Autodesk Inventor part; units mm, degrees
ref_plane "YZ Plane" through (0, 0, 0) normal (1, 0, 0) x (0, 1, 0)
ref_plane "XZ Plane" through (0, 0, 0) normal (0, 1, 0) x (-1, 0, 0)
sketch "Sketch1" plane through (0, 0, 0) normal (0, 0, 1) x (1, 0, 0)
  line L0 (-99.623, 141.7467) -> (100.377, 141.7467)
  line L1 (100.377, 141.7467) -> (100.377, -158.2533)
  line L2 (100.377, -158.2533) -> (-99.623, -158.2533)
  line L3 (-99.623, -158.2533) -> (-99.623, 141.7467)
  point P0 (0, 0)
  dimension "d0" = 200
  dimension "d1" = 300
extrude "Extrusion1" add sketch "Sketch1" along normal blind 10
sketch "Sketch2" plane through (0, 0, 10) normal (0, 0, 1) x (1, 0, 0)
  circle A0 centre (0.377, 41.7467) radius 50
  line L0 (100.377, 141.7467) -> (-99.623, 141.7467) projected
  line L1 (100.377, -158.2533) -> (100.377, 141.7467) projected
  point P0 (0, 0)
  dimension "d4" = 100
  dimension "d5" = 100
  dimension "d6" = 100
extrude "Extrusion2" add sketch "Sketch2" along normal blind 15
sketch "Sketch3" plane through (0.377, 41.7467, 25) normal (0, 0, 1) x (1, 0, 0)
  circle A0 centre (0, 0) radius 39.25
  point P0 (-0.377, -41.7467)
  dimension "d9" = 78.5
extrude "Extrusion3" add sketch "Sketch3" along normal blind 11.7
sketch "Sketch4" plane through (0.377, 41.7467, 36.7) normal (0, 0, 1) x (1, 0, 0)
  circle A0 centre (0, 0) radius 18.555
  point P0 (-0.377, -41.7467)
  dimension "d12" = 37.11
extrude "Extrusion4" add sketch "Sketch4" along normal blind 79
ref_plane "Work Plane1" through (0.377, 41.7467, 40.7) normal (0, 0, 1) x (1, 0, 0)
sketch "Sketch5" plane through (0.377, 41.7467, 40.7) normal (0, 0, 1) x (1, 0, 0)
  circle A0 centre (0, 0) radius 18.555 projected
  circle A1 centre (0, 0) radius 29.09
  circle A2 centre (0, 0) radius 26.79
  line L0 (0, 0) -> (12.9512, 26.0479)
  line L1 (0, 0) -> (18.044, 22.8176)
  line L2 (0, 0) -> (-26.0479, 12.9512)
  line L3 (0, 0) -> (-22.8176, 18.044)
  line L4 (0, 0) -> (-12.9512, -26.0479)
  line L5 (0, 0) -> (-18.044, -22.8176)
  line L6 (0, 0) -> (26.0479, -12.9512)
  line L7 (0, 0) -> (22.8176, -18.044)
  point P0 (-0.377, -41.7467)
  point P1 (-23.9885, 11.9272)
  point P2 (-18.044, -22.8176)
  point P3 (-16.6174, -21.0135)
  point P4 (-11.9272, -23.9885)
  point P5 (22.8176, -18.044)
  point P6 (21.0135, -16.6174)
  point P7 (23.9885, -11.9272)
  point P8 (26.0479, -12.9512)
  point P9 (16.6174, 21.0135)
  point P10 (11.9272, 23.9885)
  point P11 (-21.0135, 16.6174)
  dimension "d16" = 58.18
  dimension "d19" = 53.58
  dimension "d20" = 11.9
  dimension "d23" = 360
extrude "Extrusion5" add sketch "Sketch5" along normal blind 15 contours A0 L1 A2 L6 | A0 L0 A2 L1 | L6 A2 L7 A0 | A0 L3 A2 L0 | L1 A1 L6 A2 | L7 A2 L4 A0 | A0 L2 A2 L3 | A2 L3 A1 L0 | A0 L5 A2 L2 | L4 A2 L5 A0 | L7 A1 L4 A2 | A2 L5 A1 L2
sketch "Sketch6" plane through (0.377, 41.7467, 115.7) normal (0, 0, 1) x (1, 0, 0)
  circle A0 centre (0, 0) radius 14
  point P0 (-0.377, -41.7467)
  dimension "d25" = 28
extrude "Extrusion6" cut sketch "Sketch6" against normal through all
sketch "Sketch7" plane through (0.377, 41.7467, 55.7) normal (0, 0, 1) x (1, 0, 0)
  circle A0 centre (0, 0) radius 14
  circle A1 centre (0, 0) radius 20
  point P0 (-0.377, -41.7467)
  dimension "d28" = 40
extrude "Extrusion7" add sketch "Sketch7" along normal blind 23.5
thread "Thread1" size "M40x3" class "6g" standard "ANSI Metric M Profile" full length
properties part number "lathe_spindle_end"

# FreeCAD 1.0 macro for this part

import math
import FreeCAD as App
import Part
import Sketcher

doc = App.newDocument("Part")
body = doc.addObject("PartDesign::Body", "Body")

# Sketch on XY plane
sketch1 = doc.addObject("Sketcher::SketchObject", "Sketch")
body.addObject(sketch1)
sketch1.AttachmentSupport = (doc.XY_Plane, [""])
sketch1.MapMode = "FlatFace"
sketch1.addGeometry([
    Part.LineSegment(App.Vector(100, 142, 0), App.Vector(-100, 142, 0)),
    Part.LineSegment(App.Vector(-100, 142, 0), App.Vector(-100, -158, 0)),
    Part.LineSegment(App.Vector(-100, -158, 0), App.Vector(100, -158, 0)),
    Part.LineSegment(App.Vector(100, -158, 0), App.Vector(100, 142, 0)),
], False)
sketch1.addConstraint([
    Sketcher.Constraint("Coincident", 0, 2, 1, 1),
    Sketcher.Constraint("Coincident", 1, 2, 2, 1),
    Sketcher.Constraint("Coincident", 2, 2, 3, 1),
    Sketcher.Constraint("Coincident", 3, 2, 0, 1),
    Sketcher.Constraint("Horizontal", 0),
    Sketcher.Constraint("Vertical", 1),
    Sketcher.Constraint("Horizontal", 2),
    Sketcher.Constraint("Vertical", 3),
    Sketcher.Constraint("DistanceX", 0, 2, 0, 1, 200.0),
    Sketcher.Constraint("DistanceY", 1, 2, 1, 1, 300.0),
    Sketcher.Constraint("DistanceX", 0, 2, -1, 1, 99.623),
    Sketcher.Constraint("DistanceY", -1, 1, 0, 2, 141.7467),
])
pad1 = doc.addObject("PartDesign::Pad", "Pad")
body.addObject(pad1)
pad1.Profile = sketch1
pad1.Length = 10

# Sketch on XY plane
sketch2 = doc.addObject("Sketcher::SketchObject", "Sketch001")
body.addObject(sketch2)
sketch2.AttachmentSupport = (doc.XY_Plane, [""])
sketch2.MapMode = "FlatFace"
sketch2.AttachmentOffset = App.Placement(App.Vector(0, 0, 10), App.Rotation())
sketch2.addGeometry(Part.Circle(App.Vector(0, 42, 0), App.Vector(0, 0, 1), 50), False)
sketch2.addConstraint([
    Sketcher.Constraint("Diameter", 0, 100.0),
    Sketcher.Constraint("DistanceX", -1, 1, 0, 3, 0.377),
    Sketcher.Constraint("DistanceY", -1, 1, 0, 3, 41.7467),
])
pad2 = doc.addObject("PartDesign::Pad", "Pad001")
body.addObject(pad2)
pad2.Profile = sketch2
pad2.Length = 15

# Sketch on XY plane
sketch3 = doc.addObject("Sketcher::SketchObject", "Sketch002")
body.addObject(sketch3)
sketch3.AttachmentSupport = (doc.XY_Plane, [""])
sketch3.MapMode = "FlatFace"
sketch3.AttachmentOffset = App.Placement(App.Vector(0, 0, 25), App.Rotation())
sketch3.addGeometry(Part.Circle(App.Vector(0, 42, 0), App.Vector(0, 0, 1), 39), False)
sketch3.addConstraint([
    Sketcher.Constraint("Diameter", 0, 78.5),
    Sketcher.Constraint("DistanceX", -1, 1, 0, 3, 0.377),
    Sketcher.Constraint("DistanceY", -1, 1, 0, 3, 41.7467),
])
pad3 = doc.addObject("PartDesign::Pad", "Pad002")
body.addObject(pad3)
pad3.Profile = sketch3
pad3.Length = 11.7

# Sketch on XY plane
sketch4 = doc.addObject("Sketcher::SketchObject", "Sketch003")
body.addObject(sketch4)
sketch4.AttachmentSupport = (doc.XY_Plane, [""])
sketch4.MapMode = "FlatFace"
sketch4.AttachmentOffset = App.Placement(App.Vector(0, 0, 36.7), App.Rotation())
sketch4.addGeometry(Part.Circle(App.Vector(0, 42, 0), App.Vector(0, 0, 1), 19), False)
sketch4.addConstraint([
    Sketcher.Constraint("Diameter", 0, 37.11),
    Sketcher.Constraint("DistanceX", -1, 1, 0, 3, 0.377),
    Sketcher.Constraint("DistanceY", -1, 1, 0, 3, 41.7467),
])
pad4 = doc.addObject("PartDesign::Pad", "Pad003")
body.addObject(pad4)
pad4.Profile = sketch4
pad4.Length = 79

# Sketch on XY plane
sketch5 = doc.addObject("Sketcher::SketchObject", "Sketch004")
body.addObject(sketch5)
sketch5.AttachmentSupport = (doc.XY_Plane, [""])
sketch5.MapMode = "FlatFace"
sketch5.AttachmentOffset = App.Placement(App.Vector(0, 0, 40.7), App.Rotation())
sketch5.addGeometry([
    Part.ArcOfCircle(Part.Circle(App.Vector(0.4, 41.7, 0), App.Vector(0, 0, 1), 26.8), math.radians(51.66), math.radians(63.56)),  # 0
    Part.LineSegment(App.Vector(12.3, 65.7, 0), App.Vector(13.3, 67.8, 0)),  # 1
    Part.ArcOfCircle(Part.Circle(App.Vector(0.4, 41.7, 0), App.Vector(0, 0, 1), 29.1), math.radians(64), math.radians(142)),  # 2
    Part.LineSegment(App.Vector(-22.4, 59.8, 0), App.Vector(-20.6, 58.4, 0)),  # 3
    Part.ArcOfCircle(Part.Circle(App.Vector(0.4, 41.7, 0), App.Vector(0, 0, 1), 26.8), math.radians(141.66), math.radians(153.56)),  # 4
    Part.LineSegment(App.Vector(-23.6, 53.7, 0), App.Vector(-25.7, 54.7, 0)),  # 5
    Part.ArcOfCircle(Part.Circle(App.Vector(0.4, 41.7, 0), App.Vector(0, 0, 1), 29.1), math.radians(154), math.radians(232)),  # 6
    Part.LineSegment(App.Vector(-17.7, 18.9, 0), App.Vector(-16.2, 20.7, 0)),  # 7
    Part.ArcOfCircle(Part.Circle(App.Vector(0.4, 41.7, 0), App.Vector(0, 0, 1), 26.8), math.radians(-128.34), math.radians(-116.44)),  # 8
    Part.LineSegment(App.Vector(-11.6, 17.8, 0), App.Vector(-12.6, 15.7, 0)),  # 9
    Part.ArcOfCircle(Part.Circle(App.Vector(0.4, 41.7, 0), App.Vector(0, 0, 1), 29.1), math.radians(-116), math.radians(-38)),  # 10
    Part.LineSegment(App.Vector(23.2, 23.7, 0), App.Vector(21.4, 25.1, 0)),  # 11
    Part.ArcOfCircle(Part.Circle(App.Vector(0.4, 41.7, 0), App.Vector(0, 0, 1), 26.8), math.radians(-38.34), math.radians(-26.44)),  # 12
    Part.LineSegment(App.Vector(24.4, 29.8, 0), App.Vector(26.4, 28.8, 0)),  # 13
    Part.ArcOfCircle(Part.Circle(App.Vector(0.4, 41.7, 0), App.Vector(0, 0, 1), 29.1), math.radians(-26), math.radians(52)),  # 14
    Part.LineSegment(App.Vector(18.4, 64.6, 0), App.Vector(17, 62.8, 0)),  # 15
    Part.Circle(App.Vector(0.4, 41.7, 0), App.Vector(0, 0, 1), 18.6),  # 16
], False)
sketch5.addConstraint([
    Sketcher.Constraint("Coincident", 0, 2, 1, 1),
    Sketcher.Constraint("Coincident", 1, 2, 2, 1),
    Sketcher.Constraint("Coincident", 2, 2, 3, 1),
    Sketcher.Constraint("Coincident", 3, 2, 4, 1),
    Sketcher.Constraint("Coincident", 4, 2, 5, 1),
    Sketcher.Constraint("Coincident", 5, 2, 6, 1),
    Sketcher.Constraint("Coincident", 6, 2, 7, 1),
    Sketcher.Constraint("Coincident", 7, 2, 8, 1),
    Sketcher.Constraint("Coincident", 8, 2, 9, 1),
    Sketcher.Constraint("Coincident", 9, 2, 10, 1),
    Sketcher.Constraint("Coincident", 10, 2, 11, 1),
    Sketcher.Constraint("Coincident", 11, 2, 12, 1),
    Sketcher.Constraint("Coincident", 12, 2, 13, 1),
    Sketcher.Constraint("Coincident", 13, 2, 14, 1),
    Sketcher.Constraint("Coincident", 14, 2, 15, 1),
    Sketcher.Constraint("Coincident", 15, 2, 0, 1),
    Sketcher.Constraint("Coincident", 2, 3, 0, 3),
    Sketcher.Constraint("Coincident", 4, 3, 0, 3),
    Sketcher.Constraint("Coincident", 6, 3, 0, 3),
    Sketcher.Constraint("Coincident", 8, 3, 0, 3),
    Sketcher.Constraint("Coincident", 10, 3, 0, 3),
    Sketcher.Constraint("Coincident", 12, 3, 0, 3),
    Sketcher.Constraint("Coincident", 14, 3, 0, 3),
    Sketcher.Constraint("Coincident", 16, 3, 0, 3),
    Sketcher.Constraint("Equal", 0, 4),
    Sketcher.Constraint("Equal", 2, 6),
    Sketcher.Constraint("Equal", 4, 8),
    Sketcher.Constraint("Equal", 6, 10),
    Sketcher.Constraint("Equal", 8, 12),
    Sketcher.Constraint("Equal", 10, 14),
    Sketcher.Constraint("Perpendicular", 1, 5),
    Sketcher.Constraint("Perpendicular", 3, 7),
    Sketcher.Constraint("Perpendicular", 5, 9),
    Sketcher.Constraint("Perpendicular", 7, 11),
    Sketcher.Constraint("Perpendicular", 9, 13),
    Sketcher.Constraint("Perpendicular", 11, 15),
    Sketcher.Constraint("Radius", 0, 26.79),
    Sketcher.Constraint("Radius", 2, 29.09),
    Sketcher.Constraint("Diameter", 16, 37.11),
    Sketcher.Constraint("DistanceX", -1, 1, 0, 3, 0.377),
    Sketcher.Constraint("DistanceY", -1, 1, 3, 2, 58.364),
    Sketcher.Constraint("DistanceY", -1, 1, 4, 2, 53.674),
    Sketcher.Constraint("DistanceX", 5, 2, -1, 1, 25.671),
    Sketcher.Constraint("DistanceY", -1, 1, 5, 2, 54.698),
    Sketcher.Constraint("DistanceX", 6, 2, -1, 1, 17.667),
    Sketcher.Constraint("DistanceX", -1, 1, 13, 2, 26.425),
    Sketcher.Constraint("DistanceX", -1, 1, 14, 2, 18.421),
    Sketcher.Constraint("DistanceY", 0, 3, 1, 2, 26.048),
    Sketcher.Constraint("DistanceY", 0, 3, 2, 2, 18.044),
    Sketcher.Constraint("DistanceY", 8, 2, 7, 2, 2.975),
    Sketcher.Constraint("DistanceY", 10, 2, 0, 3, 18.044),
])
pad5 = doc.addObject("PartDesign::Pad", "Pad004")
body.addObject(pad5)
pad5.Profile = sketch5
pad5.Length = 15

# Sketch on XY plane
sketch6 = doc.addObject("Sketcher::SketchObject", "Sketch005")
body.addObject(sketch6)
sketch6.AttachmentSupport = (doc.XY_Plane, [""])
sketch6.MapMode = "FlatFace"
sketch6.AttachmentOffset = App.Placement(App.Vector(0, 0, 115.7), App.Rotation())
sketch6.addGeometry(Part.Circle(App.Vector(0, 42, 0), App.Vector(0, 0, 1), 14), False)
sketch6.addConstraint([
    Sketcher.Constraint("Diameter", 0, 28.0),
    Sketcher.Constraint("DistanceX", -1, 1, 0, 3, 0.377),
    Sketcher.Constraint("DistanceY", -1, 1, 0, 3, 41.7467),
])
pocket1 = doc.addObject("PartDesign::Pocket", "Pocket")
body.addObject(pocket1)
pocket1.Profile = sketch6
pocket1.Type = "ThroughAll"

# Sketch on XY plane
sketch7 = doc.addObject("Sketcher::SketchObject", "Sketch006")
body.addObject(sketch7)
sketch7.AttachmentSupport = (doc.XY_Plane, [""])
sketch7.MapMode = "FlatFace"
sketch7.AttachmentOffset = App.Placement(App.Vector(0, 0, 55.7), App.Rotation())
sketch7.addGeometry([
    Part.Circle(App.Vector(0, 42, 0), App.Vector(0, 0, 1), 20),
    Part.Circle(App.Vector(0, 42, 0), App.Vector(0, 0, 1), 14),
], False)
sketch7.addConstraint([
    Sketcher.Constraint("Coincident", 1, 3, 0, 3),
    Sketcher.Constraint("Diameter", 0, 40.0),
    Sketcher.Constraint("Diameter", 1, 28.0),
    Sketcher.Constraint("DistanceX", -1, 1, 0, 3, 0.377),
    Sketcher.Constraint("DistanceY", -1, 1, 0, 3, 41.7467),
])
pad6 = doc.addObject("PartDesign::Pad", "Pad005")
body.addObject(pad6)
pad6.Profile = sketch7
pad6.Length = 23.5

doc.recompute()
